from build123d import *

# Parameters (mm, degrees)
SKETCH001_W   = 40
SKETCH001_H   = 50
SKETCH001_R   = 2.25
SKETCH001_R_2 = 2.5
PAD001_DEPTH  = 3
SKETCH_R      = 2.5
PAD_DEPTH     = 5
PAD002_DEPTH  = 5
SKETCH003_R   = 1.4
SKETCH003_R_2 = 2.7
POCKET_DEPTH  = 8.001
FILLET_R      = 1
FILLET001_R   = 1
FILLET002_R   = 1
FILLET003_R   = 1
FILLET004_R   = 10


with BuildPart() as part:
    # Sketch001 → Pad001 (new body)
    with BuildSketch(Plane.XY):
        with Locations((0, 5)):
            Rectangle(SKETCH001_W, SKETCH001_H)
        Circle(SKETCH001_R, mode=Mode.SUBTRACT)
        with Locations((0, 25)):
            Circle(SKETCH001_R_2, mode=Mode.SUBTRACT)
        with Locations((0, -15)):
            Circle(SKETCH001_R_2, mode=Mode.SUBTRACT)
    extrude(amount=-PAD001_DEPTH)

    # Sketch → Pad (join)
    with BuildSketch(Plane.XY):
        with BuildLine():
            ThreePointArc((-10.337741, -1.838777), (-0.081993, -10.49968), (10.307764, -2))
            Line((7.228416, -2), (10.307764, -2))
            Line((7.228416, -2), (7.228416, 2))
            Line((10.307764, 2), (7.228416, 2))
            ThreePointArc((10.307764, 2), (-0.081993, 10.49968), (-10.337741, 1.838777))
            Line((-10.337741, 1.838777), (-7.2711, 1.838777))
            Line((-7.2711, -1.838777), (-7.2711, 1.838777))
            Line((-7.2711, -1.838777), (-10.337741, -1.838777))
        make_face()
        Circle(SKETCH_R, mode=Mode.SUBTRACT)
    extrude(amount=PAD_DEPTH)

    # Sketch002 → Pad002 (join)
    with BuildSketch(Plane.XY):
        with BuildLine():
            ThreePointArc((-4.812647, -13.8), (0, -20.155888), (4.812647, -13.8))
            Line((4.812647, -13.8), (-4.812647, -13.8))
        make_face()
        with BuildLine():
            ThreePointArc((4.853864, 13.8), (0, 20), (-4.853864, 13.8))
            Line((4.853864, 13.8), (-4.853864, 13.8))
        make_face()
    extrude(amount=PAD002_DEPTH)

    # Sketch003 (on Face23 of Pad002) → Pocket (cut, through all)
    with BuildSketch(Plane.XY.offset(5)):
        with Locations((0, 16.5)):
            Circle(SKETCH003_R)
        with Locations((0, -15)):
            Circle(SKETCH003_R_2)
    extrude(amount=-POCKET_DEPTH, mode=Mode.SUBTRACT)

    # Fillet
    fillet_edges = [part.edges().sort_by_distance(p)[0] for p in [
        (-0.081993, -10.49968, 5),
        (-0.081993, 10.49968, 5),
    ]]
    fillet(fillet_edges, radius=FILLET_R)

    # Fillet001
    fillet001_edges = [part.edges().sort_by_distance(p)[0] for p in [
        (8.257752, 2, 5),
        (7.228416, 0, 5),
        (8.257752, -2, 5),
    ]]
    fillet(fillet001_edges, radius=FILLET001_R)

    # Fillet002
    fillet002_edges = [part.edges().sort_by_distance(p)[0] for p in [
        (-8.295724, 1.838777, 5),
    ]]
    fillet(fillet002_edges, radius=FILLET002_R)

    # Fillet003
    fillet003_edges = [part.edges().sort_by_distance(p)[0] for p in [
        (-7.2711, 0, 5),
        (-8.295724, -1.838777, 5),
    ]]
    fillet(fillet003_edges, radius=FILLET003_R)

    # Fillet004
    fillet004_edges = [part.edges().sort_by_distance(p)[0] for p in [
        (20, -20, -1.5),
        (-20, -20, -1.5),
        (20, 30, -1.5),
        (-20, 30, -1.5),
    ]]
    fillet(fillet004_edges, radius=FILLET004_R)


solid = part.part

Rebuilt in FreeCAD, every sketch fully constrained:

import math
import FreeCAD as App
import Part
import Sketcher

V = App.Vector
Q = App.Units.Quantity


def edges_at(feature, points):
    """Names of the edges that pass closest to the given points."""
    edges = feature.Shape.Edges
    near = lambda p: min(range(len(edges)), key=lambda i: edges[i].distToShape(Part.Vertex(*p))[0])
    return sorted({f"Edge{near(p) + 1}" for p in points})

doc = App.newDocument("Part")
body = doc.addObject("PartDesign::Body", "Body")

# Sketch on XY plane
sketch1 = doc.addObject("Sketcher::SketchObject", "Sketch")
body.addObject(sketch1)
sketch1.AttachmentSupport = (doc.XY_Plane, [""])
sketch1.MapMode = "FlatFace"
sketch1.addGeometry(Part.LineSegment(V(-20, 30, 0), V(-20, -20, 0)), False)
sketch1.addGeometry(Part.LineSegment(V(-20, -20, 0), V(20, -20, 0)), False)
sketch1.addGeometry(Part.LineSegment(V(20, -20, 0), V(20, 30, 0)), False)
sketch1.addGeometry(Part.LineSegment(V(20, 30, 0), V(-20, 30, 0)), False)
sketch1.addGeometry(Part.Circle(V(0, -15, 0), V(0, 0, 1), 2.5), False)
sketch1.addGeometry(Part.Circle(V(0, 0, 0), V(0, 0, 1), 2.25), False)
sketch1.addGeometry(Part.Circle(V(0, 25, 0), V(0, 0, 1), 2.5), False)
sketch1.addConstraint(Sketcher.Constraint("Coincident", 0, 2, 1, 1))
sketch1.addConstraint(Sketcher.Constraint("Coincident", 1, 2, 2, 1))
sketch1.addConstraint(Sketcher.Constraint("Coincident", 2, 2, 3, 1))
sketch1.addConstraint(Sketcher.Constraint("Coincident", 3, 2, 0, 1))
sketch1.addConstraint(Sketcher.Constraint("Vertical", 0))
sketch1.addConstraint(Sketcher.Constraint("Horizontal", 1))
sketch1.addConstraint(Sketcher.Constraint("Vertical", 2))
sketch1.addConstraint(Sketcher.Constraint("Horizontal", 3))
sketch1.addConstraint(Sketcher.Constraint("Coincident", 5, 3, -1, 1))
sketch1.addConstraint(Sketcher.Constraint("Equal", 4, 6))
sketch1.addConstraint(Sketcher.Constraint("PointOnObject", 4, 3, -2))
sketch1.addConstraint(Sketcher.Constraint("PointOnObject", 6, 3, -2))
sketch1.addConstraint(Sketcher.Constraint("Diameter", 4, Q("5 mm")))
sketch1.addConstraint(Sketcher.Constraint("Diameter", 5, Q("4.5 mm")))
sketch1.addConstraint(Sketcher.Constraint("DistanceX", 1, 1, 1, 2, Q("40 mm")))
sketch1.addConstraint(Sketcher.Constraint("DistanceY", 0, 2, 0, 1, Q("50 mm")))
sketch1.addConstraint(Sketcher.Constraint("DistanceY", 4, 3, -1, 1, Q("15 mm")))
sketch1.addConstraint(Sketcher.Constraint("DistanceY", -1, 1, 6, 3, Q("25 mm")))
sketch1.addConstraint(Sketcher.Constraint("DistanceX", 0, 2, -1, 1, Q("20 mm")))
sketch1.addConstraint(Sketcher.Constraint("DistanceY", 0, 2, -1, 1, Q("20 mm")))
pad1 = doc.addObject("PartDesign::Pad", "Pad")
body.addObject(pad1)
pad1.Profile = sketch1
pad1.Length = 3
pad1.Reversed = True

# Sketch on XY plane
sketch2 = doc.addObject("Sketcher::SketchObject", "Sketch001")
body.addObject(sketch2)
sketch2.AttachmentSupport = (doc.XY_Plane, [""])
sketch2.MapMode = "FlatFace"
sketch2.addGeometry(Part.ArcOfCircle(Part.Circle(V(0, -0.000001, 0), V(0, 0, 1), 10.5), math.radians(-169.914267), math.radians(-10.980573)), False)
sketch2.addGeometry(Part.LineSegment(V(10.307764, -2, 0), V(7.228416, -2, 0)), False)
sketch2.addGeometry(Part.LineSegment(V(7.228416, -2, 0), V(7.228416, 2, 0)), False)
sketch2.addGeometry(Part.LineSegment(V(7.228416, 2, 0), V(10.307764, 2, 0)), False)
sketch2.addGeometry(Part.ArcOfCircle(Part.Circle(V(0, 0.000001, 0), V(0, 0, 1), 10.5), math.radians(10.980573), math.radians(169.914267)), False)
sketch2.addGeometry(Part.LineSegment(V(-10.337741, 1.838777, 0), V(-7.2711, 1.838777, 0)), False)
sketch2.addGeometry(Part.LineSegment(V(-7.2711, 1.838777, 0), V(-7.2711, -1.838777, 0)), False)
sketch2.addGeometry(Part.LineSegment(V(-7.2711, -1.838777, 0), V(-10.337741, -1.838777, 0)), False)
sketch2.addGeometry(Part.Circle(V(0, 0, 0), V(0, 0, 1), 2.5), False)
sketch2.addConstraint(Sketcher.Constraint("Coincident", 0, 2, 1, 1))
sketch2.addConstraint(Sketcher.Constraint("Coincident", 1, 2, 2, 1))
sketch2.addConstraint(Sketcher.Constraint("Coincident", 2, 2, 3, 1))
sketch2.addConstraint(Sketcher.Constraint("Coincident", 3, 2, 4, 1))
sketch2.addConstraint(Sketcher.Constraint("Coincident", 4, 2, 5, 1))
sketch2.addConstraint(Sketcher.Constraint("Coincident", 5, 2, 6, 1))
sketch2.addConstraint(Sketcher.Constraint("Coincident", 6, 2, 7, 1))
sketch2.addConstraint(Sketcher.Constraint("Coincident", 7, 2, 0, 1))
sketch2.addConstraint(Sketcher.Constraint("Horizontal", 1))
sketch2.addConstraint(Sketcher.Constraint("Vertical", 2))
sketch2.addConstraint(Sketcher.Constraint("Horizontal", 3))
sketch2.addConstraint(Sketcher.Constraint("Horizontal", 5))
sketch2.addConstraint(Sketcher.Constraint("Vertical", 6))
sketch2.addConstraint(Sketcher.Constraint("Horizontal", 7))
sketch2.addConstraint(Sketcher.Constraint("Coincident", 0, 3, -1, 1))
sketch2.addConstraint(Sketcher.Constraint("Coincident", 4, 3, -1, 1))
sketch2.addConstraint(Sketcher.Constraint("Coincident", 8, 3, -1, 1))
sketch2.addConstraint(Sketcher.Constraint("Equal", 0, 4))
sketch2.addConstraint(Sketcher.Constraint("Vertical", 0, 2, 3, 2))
sketch2.addConstraint(Sketcher.Constraint("Vertical", 4, 2, 7, 2))
sketch2.addConstraint(Sketcher.Constraint("Diameter", 8, Q("5 mm")))
sketch2.addConstraint(Sketcher.Constraint("Radius", 0, Q("10.5 mm")))
sketch2.addConstraint(Sketcher.Constraint("DistanceY", 2, 1, 2, 2, Q("4 mm")))
sketch2.addConstraint(Sketcher.Constraint("DistanceX", 1, 2, 1, 1, Q("3.079348 mm")))
sketch2.addConstraint(Sketcher.Constraint("DistanceX", 5, 1, 5, 2, Q("3.066641 mm")))
sketch2.addConstraint(Sketcher.Constraint("DistanceX", 5, 2, -1, 1, Q("7.2711 mm")))
pad2 = doc.addObject("PartDesign::Pad", "Pad001")
body.addObject(pad2)
pad2.Profile = sketch2
pad2.Length = 5

# Sketch on XY plane
sketch3 = doc.addObject("Sketcher::SketchObject", "Sketch002")
body.addObject(sketch3)
sketch3.AttachmentSupport = (doc.XY_Plane, [""])
sketch3.MapMode = "FlatFace"
sketch3.addGeometry(Part.ArcOfCircle(Part.Circle(V(0, -15.155888, 0), V(0, 0, 1), 5), math.radians(164.265651), math.radians(375.734349)), False)
sketch3.addGeometry(Part.LineSegment(V(4.812647, -13.8, 0), V(-4.812647, -13.8, 0)), False)
sketch3.addGeometry(Part.ArcOfCircle(Part.Circle(V(0, 15, 0), V(0, 0, 1), 5), math.radians(-13.886545), math.radians(193.886545)), False)
sketch3.addGeometry(Part.LineSegment(V(-4.853864, 13.8, 0), V(4.853864, 13.8, 0)), False)
sketch3.addConstraint(Sketcher.Constraint("Coincident", 0, 1, 1, 2))
sketch3.addConstraint(Sketcher.Constraint("Coincident", 1, 1, 0, 2))
sketch3.addConstraint(Sketcher.Constraint("Coincident", 2, 1, 3, 2))
sketch3.addConstraint(Sketcher.Constraint("Coincident", 3, 1, 2, 2))
sketch3.addConstraint(Sketcher.Constraint("Horizontal", 1))
sketch3.addConstraint(Sketcher.Constraint("Horizontal", 3))
sketch3.addConstraint(Sketcher.Constraint("Equal", 0, 2))
sketch3.addConstraint(Sketcher.Constraint("PointOnObject", 0, 3, -2))
sketch3.addConstraint(Sketcher.Constraint("PointOnObject", 2, 3, -2))
sketch3.addConstraint(Sketcher.Constraint("Radius", 0, Q("5 mm")))
sketch3.addConstraint(Sketcher.Constraint("DistanceY", -1, 1, 2, 3, Q("15 mm")))
sketch3.addConstraint(Sketcher.Constraint("DistanceY", 0, 1, -1, 1, Q("13.8 mm")))
sketch3.addConstraint(Sketcher.Constraint("DistanceY", -1, 1, 2, 1, Q("13.8 mm")))
sketch3.addConstraint(Sketcher.Constraint("DistanceX", 1, 2, 1, 1, Q("9.625294 mm")))
pad3 = doc.addObject("PartDesign::Pad", "Pad002")
body.addObject(pad3)
pad3.Profile = sketch3
pad3.Length = 5

# Sketch on XY plane
sketch4 = doc.addObject("Sketcher::SketchObject", "Sketch003")
body.addObject(sketch4)
sketch4.AttachmentSupport = (doc.XY_Plane, [""])
sketch4.MapMode = "FlatFace"
sketch4.AttachmentOffset = App.Placement(V(0, 0, 5), App.Rotation())
sketch4.addGeometry(Part.Circle(V(0, 16.5, 0), V(0, 0, 1), 1.4), False)
sketch4.addGeometry(Part.Circle(V(0, -15, 0), V(0, 0, 1), 2.7), False)
sketch4.addConstraint(Sketcher.Constraint("PointOnObject", 0, 3, -2))
sketch4.addConstraint(Sketcher.Constraint("PointOnObject", 1, 3, -2))
sketch4.addConstraint(Sketcher.Constraint("Diameter", 0, Q("2.8 mm")))
sketch4.addConstraint(Sketcher.Constraint("Diameter", 1, Q("5.4 mm")))
sketch4.addConstraint(Sketcher.Constraint("DistanceY", 1, 3, -1, 1, Q("15 mm")))
sketch4.addConstraint(Sketcher.Constraint("DistanceY", -1, 1, 0, 3, Q("16.5 mm")))
pocket1 = doc.addObject("PartDesign::Pocket", "Pocket")
body.addObject(pocket1)
pocket1.Profile = sketch4
pocket1.Type = "ThroughAll"
doc.recompute()

fillet = doc.addObject("PartDesign::Fillet", "Fillet")
body.addObject(fillet)
fillet.Base = (pocket1, edges_at(pocket1, [(-0.082, -10.5, 5), (-0.082, 10.5, 5)]))
fillet.Radius = 1
doc.recompute()

fillet2 = doc.addObject("PartDesign::Fillet", "Fillet001")
body.addObject(fillet2)
fillet2.Base = (fillet, edges_at(fillet, [(8.258, 2, 5), (7.228, 0, 5), (8.258, -2, 5)]))
fillet2.Radius = 1
doc.recompute()

fillet3 = doc.addObject("PartDesign::Fillet", "Fillet002")
body.addObject(fillet3)
fillet3.Base = (fillet2, edges_at(fillet2, [(-8.296, 1.839, 5)]))
fillet3.Radius = 1
doc.recompute()

fillet4 = doc.addObject("PartDesign::Fillet", "Fillet003")
body.addObject(fillet4)
fillet4.Base = (fillet3, edges_at(fillet3, [(-7.271, 0.5, 5), (-8.296, -1.839, 5)]))
fillet4.Radius = 1
doc.recompute()

fillet5 = doc.addObject("PartDesign::Fillet", "Fillet004")
body.addObject(fillet5)
fillet5.Base = (fillet4, edges_at(fillet4, [
    (20, -20, -1.5),
    (-20, -20, -1.5),
    (20, 30, -1.5),
    (-20, 30, -1.5),
]))
fillet5.Radius = 10

doc.recompute()
